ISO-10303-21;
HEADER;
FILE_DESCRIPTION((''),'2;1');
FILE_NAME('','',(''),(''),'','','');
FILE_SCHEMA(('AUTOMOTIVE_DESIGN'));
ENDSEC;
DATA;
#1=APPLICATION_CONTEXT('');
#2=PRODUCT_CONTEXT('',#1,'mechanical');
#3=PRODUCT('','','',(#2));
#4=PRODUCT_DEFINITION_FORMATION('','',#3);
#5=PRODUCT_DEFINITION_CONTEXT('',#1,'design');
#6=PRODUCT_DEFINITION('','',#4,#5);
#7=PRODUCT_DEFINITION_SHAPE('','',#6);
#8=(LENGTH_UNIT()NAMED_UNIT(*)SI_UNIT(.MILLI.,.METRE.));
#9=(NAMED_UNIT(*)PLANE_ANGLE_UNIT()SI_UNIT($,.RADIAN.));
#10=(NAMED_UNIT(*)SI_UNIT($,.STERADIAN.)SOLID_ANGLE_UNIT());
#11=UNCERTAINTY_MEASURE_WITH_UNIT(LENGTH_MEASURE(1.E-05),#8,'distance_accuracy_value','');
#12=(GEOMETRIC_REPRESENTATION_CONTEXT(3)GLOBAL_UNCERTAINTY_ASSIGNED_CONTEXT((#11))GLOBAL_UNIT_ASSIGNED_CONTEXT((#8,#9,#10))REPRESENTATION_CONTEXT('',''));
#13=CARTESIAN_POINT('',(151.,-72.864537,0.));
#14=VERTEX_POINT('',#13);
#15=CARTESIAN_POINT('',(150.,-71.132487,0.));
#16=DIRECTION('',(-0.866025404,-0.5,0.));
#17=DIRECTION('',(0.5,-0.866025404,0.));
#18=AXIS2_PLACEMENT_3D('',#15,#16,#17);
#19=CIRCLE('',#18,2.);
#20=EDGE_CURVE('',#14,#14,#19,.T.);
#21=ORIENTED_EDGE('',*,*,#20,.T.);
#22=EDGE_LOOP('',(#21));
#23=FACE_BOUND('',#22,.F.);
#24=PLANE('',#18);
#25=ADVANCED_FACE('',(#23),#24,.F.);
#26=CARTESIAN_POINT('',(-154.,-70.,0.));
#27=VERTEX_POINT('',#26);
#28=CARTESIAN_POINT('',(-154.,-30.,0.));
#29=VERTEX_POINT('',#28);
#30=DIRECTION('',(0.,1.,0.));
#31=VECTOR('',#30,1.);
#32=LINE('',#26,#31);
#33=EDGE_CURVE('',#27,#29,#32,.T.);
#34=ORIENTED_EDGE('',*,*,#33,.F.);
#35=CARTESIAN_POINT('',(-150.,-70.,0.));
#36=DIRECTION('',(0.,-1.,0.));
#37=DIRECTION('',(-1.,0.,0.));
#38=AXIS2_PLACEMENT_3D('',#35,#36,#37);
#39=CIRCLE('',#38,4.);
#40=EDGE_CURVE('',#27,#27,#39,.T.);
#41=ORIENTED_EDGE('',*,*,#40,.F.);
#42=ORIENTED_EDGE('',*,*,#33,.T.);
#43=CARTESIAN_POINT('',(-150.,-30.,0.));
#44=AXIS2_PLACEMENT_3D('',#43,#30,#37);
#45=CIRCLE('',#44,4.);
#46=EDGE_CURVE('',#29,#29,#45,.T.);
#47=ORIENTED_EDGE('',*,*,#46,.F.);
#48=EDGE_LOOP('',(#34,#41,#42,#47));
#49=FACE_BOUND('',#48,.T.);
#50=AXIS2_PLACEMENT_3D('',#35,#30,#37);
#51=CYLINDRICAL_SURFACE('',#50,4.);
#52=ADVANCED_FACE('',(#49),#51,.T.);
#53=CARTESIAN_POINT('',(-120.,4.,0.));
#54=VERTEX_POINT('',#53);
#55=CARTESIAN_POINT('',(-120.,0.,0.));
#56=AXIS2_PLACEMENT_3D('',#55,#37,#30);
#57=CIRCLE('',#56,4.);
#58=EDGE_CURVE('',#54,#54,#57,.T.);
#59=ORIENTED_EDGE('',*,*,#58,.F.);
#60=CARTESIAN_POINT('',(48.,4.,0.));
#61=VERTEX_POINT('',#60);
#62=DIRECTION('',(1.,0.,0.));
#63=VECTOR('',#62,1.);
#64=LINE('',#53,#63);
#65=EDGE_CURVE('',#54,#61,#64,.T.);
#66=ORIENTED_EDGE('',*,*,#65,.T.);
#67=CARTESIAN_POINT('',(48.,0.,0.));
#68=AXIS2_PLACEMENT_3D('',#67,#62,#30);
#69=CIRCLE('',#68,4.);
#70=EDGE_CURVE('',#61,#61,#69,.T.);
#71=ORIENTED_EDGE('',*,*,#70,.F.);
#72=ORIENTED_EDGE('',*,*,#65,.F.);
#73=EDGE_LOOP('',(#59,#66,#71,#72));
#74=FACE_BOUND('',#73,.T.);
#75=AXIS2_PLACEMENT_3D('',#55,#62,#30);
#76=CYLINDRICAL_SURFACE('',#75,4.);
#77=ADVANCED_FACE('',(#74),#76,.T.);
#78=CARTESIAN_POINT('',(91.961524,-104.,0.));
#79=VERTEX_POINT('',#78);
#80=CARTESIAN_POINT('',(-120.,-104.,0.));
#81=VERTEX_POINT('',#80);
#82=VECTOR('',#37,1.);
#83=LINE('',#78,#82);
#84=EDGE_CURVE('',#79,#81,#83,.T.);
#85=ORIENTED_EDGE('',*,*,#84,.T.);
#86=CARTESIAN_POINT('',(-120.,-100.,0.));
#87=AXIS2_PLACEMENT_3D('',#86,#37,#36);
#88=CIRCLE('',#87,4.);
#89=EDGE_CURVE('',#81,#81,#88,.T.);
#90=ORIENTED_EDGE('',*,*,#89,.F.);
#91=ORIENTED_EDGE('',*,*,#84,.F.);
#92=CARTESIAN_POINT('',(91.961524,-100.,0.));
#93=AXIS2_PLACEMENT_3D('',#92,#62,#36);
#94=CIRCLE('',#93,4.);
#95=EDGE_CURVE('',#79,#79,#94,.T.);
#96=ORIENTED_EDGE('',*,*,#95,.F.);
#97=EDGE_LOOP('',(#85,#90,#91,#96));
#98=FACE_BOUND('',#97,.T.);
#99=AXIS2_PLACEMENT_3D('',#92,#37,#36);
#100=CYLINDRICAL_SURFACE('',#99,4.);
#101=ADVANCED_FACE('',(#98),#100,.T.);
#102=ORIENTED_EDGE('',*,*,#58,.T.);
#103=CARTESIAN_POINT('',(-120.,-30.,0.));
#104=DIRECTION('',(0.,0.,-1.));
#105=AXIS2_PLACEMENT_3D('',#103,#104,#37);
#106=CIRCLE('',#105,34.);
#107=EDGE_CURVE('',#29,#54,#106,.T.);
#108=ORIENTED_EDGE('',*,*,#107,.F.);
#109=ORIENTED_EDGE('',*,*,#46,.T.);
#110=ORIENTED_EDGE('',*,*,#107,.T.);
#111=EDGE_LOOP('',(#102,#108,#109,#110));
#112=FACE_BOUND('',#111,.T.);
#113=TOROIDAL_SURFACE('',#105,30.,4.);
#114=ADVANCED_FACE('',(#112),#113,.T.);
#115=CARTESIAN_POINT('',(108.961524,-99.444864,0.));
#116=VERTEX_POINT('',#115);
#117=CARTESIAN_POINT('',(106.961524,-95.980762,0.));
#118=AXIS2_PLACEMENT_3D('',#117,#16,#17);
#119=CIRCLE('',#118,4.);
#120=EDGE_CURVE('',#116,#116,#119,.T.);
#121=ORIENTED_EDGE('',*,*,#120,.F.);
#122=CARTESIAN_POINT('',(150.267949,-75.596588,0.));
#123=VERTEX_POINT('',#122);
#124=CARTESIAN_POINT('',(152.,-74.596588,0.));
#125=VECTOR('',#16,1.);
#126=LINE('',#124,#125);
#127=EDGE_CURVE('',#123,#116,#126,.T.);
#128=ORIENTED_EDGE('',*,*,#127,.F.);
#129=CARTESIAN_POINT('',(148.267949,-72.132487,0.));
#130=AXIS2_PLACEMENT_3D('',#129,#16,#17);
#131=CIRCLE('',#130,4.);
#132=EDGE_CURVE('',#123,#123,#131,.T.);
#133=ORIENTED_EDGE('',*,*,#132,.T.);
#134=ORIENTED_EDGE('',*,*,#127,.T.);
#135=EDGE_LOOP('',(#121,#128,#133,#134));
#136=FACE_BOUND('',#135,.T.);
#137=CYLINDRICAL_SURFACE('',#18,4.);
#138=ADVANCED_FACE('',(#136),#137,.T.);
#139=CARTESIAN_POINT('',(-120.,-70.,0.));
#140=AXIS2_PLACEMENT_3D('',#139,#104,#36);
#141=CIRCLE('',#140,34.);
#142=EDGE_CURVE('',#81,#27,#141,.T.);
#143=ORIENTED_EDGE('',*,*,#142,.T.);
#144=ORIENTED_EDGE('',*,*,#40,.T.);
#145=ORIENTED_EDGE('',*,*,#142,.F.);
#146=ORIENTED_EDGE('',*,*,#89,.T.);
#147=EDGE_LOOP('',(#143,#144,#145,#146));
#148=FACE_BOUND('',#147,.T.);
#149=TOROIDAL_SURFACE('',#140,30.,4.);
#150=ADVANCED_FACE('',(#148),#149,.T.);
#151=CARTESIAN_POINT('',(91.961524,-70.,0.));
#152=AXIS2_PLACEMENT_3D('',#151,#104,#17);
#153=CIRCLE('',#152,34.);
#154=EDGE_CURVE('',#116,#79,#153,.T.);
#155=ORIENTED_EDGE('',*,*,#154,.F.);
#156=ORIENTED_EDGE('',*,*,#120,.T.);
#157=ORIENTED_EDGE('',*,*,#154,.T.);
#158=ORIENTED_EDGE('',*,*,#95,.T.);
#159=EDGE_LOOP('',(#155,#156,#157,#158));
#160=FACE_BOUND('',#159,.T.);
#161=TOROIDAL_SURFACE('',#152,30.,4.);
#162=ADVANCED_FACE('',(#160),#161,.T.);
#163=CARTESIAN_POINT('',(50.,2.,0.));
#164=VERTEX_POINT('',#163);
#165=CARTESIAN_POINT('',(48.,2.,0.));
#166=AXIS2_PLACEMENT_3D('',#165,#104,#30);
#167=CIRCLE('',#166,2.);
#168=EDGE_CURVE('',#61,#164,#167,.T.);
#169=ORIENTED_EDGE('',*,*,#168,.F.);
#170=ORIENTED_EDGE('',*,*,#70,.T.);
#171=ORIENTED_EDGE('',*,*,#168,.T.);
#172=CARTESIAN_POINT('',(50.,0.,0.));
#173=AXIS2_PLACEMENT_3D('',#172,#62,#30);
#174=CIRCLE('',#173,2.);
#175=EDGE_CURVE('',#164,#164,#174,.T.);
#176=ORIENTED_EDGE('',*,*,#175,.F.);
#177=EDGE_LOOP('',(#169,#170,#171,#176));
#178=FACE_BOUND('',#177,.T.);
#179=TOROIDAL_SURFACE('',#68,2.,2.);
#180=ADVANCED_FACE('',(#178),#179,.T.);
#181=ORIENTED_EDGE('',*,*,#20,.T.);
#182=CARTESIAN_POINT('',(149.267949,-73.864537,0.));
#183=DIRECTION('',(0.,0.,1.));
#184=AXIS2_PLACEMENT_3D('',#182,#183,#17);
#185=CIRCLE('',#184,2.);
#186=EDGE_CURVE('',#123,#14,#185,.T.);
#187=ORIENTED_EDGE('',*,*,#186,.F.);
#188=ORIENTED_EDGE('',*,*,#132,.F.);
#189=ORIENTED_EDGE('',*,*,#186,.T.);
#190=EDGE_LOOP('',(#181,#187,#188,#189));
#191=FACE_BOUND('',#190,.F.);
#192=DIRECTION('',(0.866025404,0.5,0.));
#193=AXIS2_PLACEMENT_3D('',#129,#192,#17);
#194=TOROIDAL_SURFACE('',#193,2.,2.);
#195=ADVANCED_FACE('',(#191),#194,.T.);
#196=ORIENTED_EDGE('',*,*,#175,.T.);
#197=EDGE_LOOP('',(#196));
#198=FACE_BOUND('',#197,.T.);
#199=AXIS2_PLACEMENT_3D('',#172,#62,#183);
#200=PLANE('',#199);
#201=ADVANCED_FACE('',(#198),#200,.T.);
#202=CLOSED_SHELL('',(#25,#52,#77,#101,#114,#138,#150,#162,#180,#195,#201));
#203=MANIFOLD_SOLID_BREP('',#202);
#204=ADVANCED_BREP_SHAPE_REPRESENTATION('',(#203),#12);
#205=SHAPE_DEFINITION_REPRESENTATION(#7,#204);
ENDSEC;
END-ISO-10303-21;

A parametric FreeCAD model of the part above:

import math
import FreeCAD as App
import Part
import Sketcher
Q = App.Units.Quantity


def edges_at(feature, points):
    """Names of the edges that pass closest to the given points."""
    edges = feature.Shape.Edges
    near = lambda p: min(range(len(edges)), key=lambda i: edges[i].distToShape(Part.Vertex(*p))[0])
    return sorted({f"Edge{near(p) + 1}" for p in points})

doc = App.newDocument("Part")
body = doc.addObject("PartDesign::Body", "Body")

sketch1 = body.newObject("Sketcher::SketchObject", "Sketch")
sketch1.Placement = App.Placement(App.Vector(150, -71.132487, 0), App.Rotation(App.Vector(0.5, -0.866025404, 0), App.Vector(0, 0, 1), App.Vector(-0.866025404, -0.5, 0), "ZXY"))
sketch1.addGeometry(Part.Circle(App.Vector(0, 0, 0), App.Vector(0, 0, 1), 4), False)
sketch1.addConstraint(Sketcher.Constraint("Coincident", 0, 3, -1, 1))
sketch1.addConstraint(Sketcher.Constraint("Diameter", 0, 8.0))

sketch2 = body.newObject("Sketcher::SketchObject", "Sketch001")
sketch2.AttachmentSupport = (doc.getObject("XY_Plane"), [""])
sketch2.MapMode = "FlatFace"
sketch2.addGeometry(Part.LineSegment(App.Vector(150, -71, 0), App.Vector(107, -96, 0)), False)
sketch2.addGeometry(Part.ArcOfCircle(Part.Circle(App.Vector(92, -70, 0), App.Vector(0, 0, 1), 30), math.radians(-90), math.radians(-60)), False)
sketch2.addGeometry(Part.LineSegment(App.Vector(92, -100, 0), App.Vector(-120, -100, 0)), False)
sketch2.addGeometry(Part.ArcOfCircle(Part.Circle(App.Vector(-120, -70, 0), App.Vector(0, 0, 1), 30), math.radians(180), math.radians(270)), False)
sketch2.addGeometry(Part.LineSegment(App.Vector(-150, -70, 0), App.Vector(-150, -30, 0)), False)
sketch2.addGeometry(Part.ArcOfCircle(Part.Circle(App.Vector(-120, -30, 0), App.Vector(0, 0, 1), 30), math.radians(90), math.radians(180)), False)
sketch2.addGeometry(Part.LineSegment(App.Vector(-120, 0, 0), App.Vector(50, 0, 0)), False)
sketch2.addConstraint(Sketcher.Constraint("Tangent", 0, 2, 1, 2))
sketch2.addConstraint(Sketcher.Constraint("Tangent", 1, 1, 2, 1))
sketch2.addConstraint(Sketcher.Constraint("Tangent", 2, 2, 3, 2))
sketch2.addConstraint(Sketcher.Constraint("Tangent", 3, 1, 4, 1))
sketch2.addConstraint(Sketcher.Constraint("Tangent", 4, 2, 5, 2))
sketch2.addConstraint(Sketcher.Constraint("Tangent", 5, 1, 6, 1))
sketch2.addConstraint(Sketcher.Constraint("Horizontal", 2))
sketch2.addConstraint(Sketcher.Constraint("Vertical", 4))
sketch2.addConstraint(Sketcher.Constraint("Horizontal", 6))
sketch2.addConstraint(Sketcher.Constraint("Equal", 1, 3))
sketch2.addConstraint(Sketcher.Constraint("Equal", 3, 5))
sketch2.addConstraint(Sketcher.Constraint("PointOnObject", 5, 1, -1))
sketch2.addConstraint(Sketcher.Constraint("Radius", 1, 30.0))
sketch2.addConstraint(Sketcher.Constraint("DistanceX", 6, 1, 6, 2, 170.0))
sketch2.addConstraint(Sketcher.Constraint("DistanceY", 4, 1, 4, 2, 40.0))
sketch2.addConstraint(Sketcher.Constraint("Angle", 0, Q("-150 deg")))
sketch2.addConstraint(Sketcher.Constraint("DistanceX", 3, 3, -1, 1, 120.0))
sketch2.addConstraint(Sketcher.Constraint("DistanceX", -1, 1, 0, 1, 150.0))
sketch2.addConstraint(Sketcher.Constraint("Distance", 0, 49.696551))
doc.recompute()

additivepipe = body.newObject("PartDesign::AdditivePipe", "AdditivePipe")
additivepipe.Profile = sketch1
additivepipe.Spine = (sketch2, ["Edge1", "Edge2", "Edge3", "Edge4", "Edge5", "Edge6", "Edge7"])
doc.recompute()

fillet = body.newObject("PartDesign::Fillet", "Fillet")
fillet.Base = (additivepipe, edges_at(additivepipe, [(148, -67.668, 0), (50, -4, 0)]))
fillet.Radius = 2

doc.recompute()
